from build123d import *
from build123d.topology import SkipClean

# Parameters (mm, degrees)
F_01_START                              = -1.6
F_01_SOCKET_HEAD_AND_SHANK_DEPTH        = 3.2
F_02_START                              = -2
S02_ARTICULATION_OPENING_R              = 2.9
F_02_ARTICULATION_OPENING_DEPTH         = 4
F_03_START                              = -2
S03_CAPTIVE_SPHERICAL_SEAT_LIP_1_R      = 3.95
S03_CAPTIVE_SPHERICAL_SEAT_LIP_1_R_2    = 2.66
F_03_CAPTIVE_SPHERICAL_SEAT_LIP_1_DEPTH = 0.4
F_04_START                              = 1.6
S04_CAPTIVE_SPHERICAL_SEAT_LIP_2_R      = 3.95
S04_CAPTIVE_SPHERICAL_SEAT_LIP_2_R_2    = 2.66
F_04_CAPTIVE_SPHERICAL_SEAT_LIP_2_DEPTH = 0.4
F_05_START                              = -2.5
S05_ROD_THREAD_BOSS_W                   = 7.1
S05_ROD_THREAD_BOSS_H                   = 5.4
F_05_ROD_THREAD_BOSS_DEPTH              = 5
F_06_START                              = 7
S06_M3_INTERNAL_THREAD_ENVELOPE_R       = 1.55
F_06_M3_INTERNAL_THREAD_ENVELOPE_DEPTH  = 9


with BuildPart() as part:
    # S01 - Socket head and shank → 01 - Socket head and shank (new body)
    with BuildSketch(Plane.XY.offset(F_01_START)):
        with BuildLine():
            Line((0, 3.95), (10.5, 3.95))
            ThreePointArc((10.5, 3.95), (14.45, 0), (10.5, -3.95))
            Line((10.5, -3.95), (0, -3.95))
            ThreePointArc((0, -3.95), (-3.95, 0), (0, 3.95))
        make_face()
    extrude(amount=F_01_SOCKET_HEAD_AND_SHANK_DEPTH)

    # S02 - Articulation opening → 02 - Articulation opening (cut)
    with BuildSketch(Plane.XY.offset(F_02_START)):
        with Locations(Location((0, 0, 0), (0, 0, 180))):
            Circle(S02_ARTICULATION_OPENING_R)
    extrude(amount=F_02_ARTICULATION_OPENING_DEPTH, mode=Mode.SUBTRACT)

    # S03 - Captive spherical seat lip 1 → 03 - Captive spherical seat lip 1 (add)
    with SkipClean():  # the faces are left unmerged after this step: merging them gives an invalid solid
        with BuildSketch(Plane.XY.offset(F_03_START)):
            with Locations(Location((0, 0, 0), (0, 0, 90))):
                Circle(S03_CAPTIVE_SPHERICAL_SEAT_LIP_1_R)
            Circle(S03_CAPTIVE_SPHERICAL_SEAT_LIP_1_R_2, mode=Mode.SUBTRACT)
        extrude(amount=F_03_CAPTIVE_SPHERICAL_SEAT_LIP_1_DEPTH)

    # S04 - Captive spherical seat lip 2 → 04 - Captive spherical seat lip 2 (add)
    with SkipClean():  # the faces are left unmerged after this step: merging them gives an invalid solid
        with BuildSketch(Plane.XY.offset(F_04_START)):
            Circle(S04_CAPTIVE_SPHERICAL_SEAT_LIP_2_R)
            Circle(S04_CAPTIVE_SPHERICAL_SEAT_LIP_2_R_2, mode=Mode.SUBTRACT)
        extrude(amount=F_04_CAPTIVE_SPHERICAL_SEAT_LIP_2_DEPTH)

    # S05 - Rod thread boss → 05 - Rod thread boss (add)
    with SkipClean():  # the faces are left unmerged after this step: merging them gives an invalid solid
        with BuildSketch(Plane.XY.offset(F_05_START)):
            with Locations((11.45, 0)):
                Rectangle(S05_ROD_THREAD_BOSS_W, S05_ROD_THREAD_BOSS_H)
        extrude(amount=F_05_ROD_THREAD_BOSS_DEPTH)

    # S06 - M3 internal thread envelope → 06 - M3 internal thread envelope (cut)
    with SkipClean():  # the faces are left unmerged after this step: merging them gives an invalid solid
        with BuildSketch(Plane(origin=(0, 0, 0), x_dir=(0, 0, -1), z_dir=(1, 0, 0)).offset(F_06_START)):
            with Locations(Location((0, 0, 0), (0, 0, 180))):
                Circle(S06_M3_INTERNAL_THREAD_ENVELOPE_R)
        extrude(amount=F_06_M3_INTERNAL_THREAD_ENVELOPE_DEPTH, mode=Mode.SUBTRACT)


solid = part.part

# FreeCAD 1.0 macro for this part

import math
import FreeCAD as App
import Part
import Sketcher
from FreeCAD import Vector
Q = App.Units.Quantity


def add_polygon(sketch, points):
    """Adds a closed chain of lines whose ends are joined by coincident constraints."""
    first, n = sketch.GeometryCount, len(points)
    for a, b in zip(points, points[1:] + points[:1]):
        sketch.addGeometry(Part.LineSegment(App.Vector(*a, 0), App.Vector(*b, 0)), False)
    for i in range(n):
        sketch.addConstraint(Sketcher.Constraint("Coincident", first + i, 2, first + (i + 1) % n, 1))

doc = App.newDocument("Part")
params = doc.addObject("Spreadsheet::Sheet", "Params")
for row, (alias, value) in enumerate([
    ("sketch1_radius", "3.95 mm"),
    ("sketch1_width", "10.5 mm"),
    ("pad1_length", "3.2 mm"),
    ("sketch2_diameter", "5.8 mm"),
    ("pocket1_length", "4 mm"),
    ("sketch3_diameter", "7.9 mm"),
    ("sketch3_diameter2", "5.32 mm"),
    ("pad2_length", "0.4 mm"),
    ("sketch4_diameter", "7.9 mm"),
    ("sketch4_diameter2", "5.32 mm"),
    ("pad3_length", "0.4 mm"),
    ("sketch5_width", "7.1 mm"),
    ("sketch5_height", "5.4 mm"),
    ("pad4_length", "5 mm"),
    ("sketch6_diameter", "3.1 mm"),
    ("pocket2_length", "9 mm"),
], start=1):
    params.set(f"A{row}", alias)
    params.set(f"B{row}", "=" + value)
    params.setAlias(f"B{row}", alias)

body = doc.addObject("PartDesign::Body", "Body")

sketch1 = body.newObject("Sketcher::SketchObject", "Sketch")
sketch1.AttachmentSupport = (doc.getObject("XY_Plane"), [""])
sketch1.MapMode = "FlatFace"
sketch1.AttachmentOffset = App.Placement(Vector(0, 0, -1.6), App.Rotation())
sketch1.addGeometry([
    Part.LineSegment(Vector(10.5, 4, 0), Vector(0, 4, 0)),
    Part.ArcOfCircle(Part.Circle(Vector(0, 0, 0), Vector(0, 0, 1), 4), math.radians(90), math.radians(270)),
    Part.LineSegment(Vector(0, -4, 0), Vector(10.5, -4, 0)),
    Part.ArcOfCircle(Part.Circle(Vector(10.5, 0, 0), Vector(0, 0, 1), 4), math.radians(-90), math.radians(90)),
], False)
sketch1.addConstraint([
    Sketcher.Constraint("Tangent", 0, 2, 1, 1),
    Sketcher.Constraint("Tangent", 1, 2, 2, 1),
    Sketcher.Constraint("Tangent", 2, 2, 3, 1),
    Sketcher.Constraint("Tangent", 3, 2, 0, 1),
    Sketcher.Constraint("Horizontal", 0),
    Sketcher.Constraint("Horizontal", 2),
    Sketcher.Constraint("Coincident", 1, 3, -1, 1),
    Sketcher.Constraint("Radius", 1, Q("3.95 mm")),
    Sketcher.Constraint("DistanceX", 0, 2, 0, 1, Q("10.5 mm")),
])
sketch1.setExpression("Constraints[7]", "Params.sketch1_radius")
sketch1.setExpression("Constraints[8]", "Params.sketch1_width")
pad1 = body.newObject("PartDesign::Pad", "Pad")
pad1.Profile = sketch1
pad1.setExpression("Length", "Params.pad1_length")

sketch2 = body.newObject("Sketcher::SketchObject", "Sketch001")
sketch2.AttachmentSupport = (doc.getObject("XY_Plane"), [""])
sketch2.MapMode = "FlatFace"
sketch2.AttachmentOffset = App.Placement(Vector(0, 0, -2), App.Rotation())
sketch2.addGeometry(Part.Circle(Vector(0, 0, 0), Vector(0, 0, 1), 2.9), False)
sketch2.addConstraint([
    Sketcher.Constraint("Coincident", 0, 3, -1, 1),
    Sketcher.Constraint("Diameter", 0, Q("5.8 mm")),
])
sketch2.setExpression("Constraints[1]", "Params.sketch2_diameter")
pocket1 = body.newObject("PartDesign::Pocket", "Pocket")
pocket1.Profile = sketch2
pocket1.setExpression("Length", "Params.pocket1_length")
pocket1.Reversed = True

sketch3 = body.newObject("Sketcher::SketchObject", "Sketch002")
sketch3.AttachmentSupport = (doc.getObject("XY_Plane"), [""])
sketch3.MapMode = "FlatFace"
sketch3.AttachmentOffset = App.Placement(Vector(0, 0, -2), App.Rotation())
sketch3.addGeometry([
    Part.Circle(Vector(0, 0, 0), Vector(0, 0, 1), 4),
    Part.Circle(Vector(0, 0, 0), Vector(0, 0, 1), 2.7),
], False)
sketch3.addConstraint([
    Sketcher.Constraint("Coincident", 0, 3, -1, 1),
    Sketcher.Constraint("Coincident", 1, 3, -1, 1),
    Sketcher.Constraint("Diameter", 0, Q("7.9 mm")),
    Sketcher.Constraint("Diameter", 1, Q("5.32 mm")),
])
sketch3.setExpression("Constraints[2]", "Params.sketch3_diameter")
sketch3.setExpression("Constraints[3]", "Params.sketch3_diameter2")
pad2 = body.newObject("PartDesign::Pad", "Pad001")
pad2.Profile = sketch3
pad2.setExpression("Length", "Params.pad2_length")

sketch4 = body.newObject("Sketcher::SketchObject", "Sketch003")
sketch4.AttachmentSupport = (doc.getObject("XY_Plane"), [""])
sketch4.MapMode = "FlatFace"
sketch4.AttachmentOffset = App.Placement(Vector(0, 0, 1.6), App.Rotation())
sketch4.addGeometry([
    Part.Circle(Vector(0, 0, 0), Vector(0, 0, 1), 4),
    Part.Circle(Vector(0, 0, 0), Vector(0, 0, 1), 2.7),
], False)
sketch4.addConstraint([
    Sketcher.Constraint("Coincident", 0, 3, -1, 1),
    Sketcher.Constraint("Coincident", 1, 3, -1, 1),
    Sketcher.Constraint("Diameter", 0, Q("7.9 mm")),
    Sketcher.Constraint("Diameter", 1, Q("5.32 mm")),
])
sketch4.setExpression("Constraints[2]", "Params.sketch4_diameter")
sketch4.setExpression("Constraints[3]", "Params.sketch4_diameter2")
pad3 = body.newObject("PartDesign::Pad", "Pad002")
pad3.Profile = sketch4
pad3.setExpression("Length", "Params.pad3_length")

sketch5 = body.newObject("Sketcher::SketchObject", "Sketch004")
sketch5.AttachmentSupport = (doc.getObject("XY_Plane"), [""])
sketch5.MapMode = "FlatFace"
sketch5.AttachmentOffset = App.Placement(Vector(0, 0, -2.5), App.Rotation())
add_polygon(sketch5, [(8, 3), (8, -3), (15, -3), (15, 3)])
sketch5.addConstraint([
    Sketcher.Constraint("Vertical", 0),
    Sketcher.Constraint("Horizontal", 1),
    Sketcher.Constraint("Vertical", 2),
    Sketcher.Constraint("Horizontal", 3),
    Sketcher.Constraint("DistanceX", 1, 1, 1, 2, Q("7.1 mm")),
    Sketcher.Constraint("DistanceY", 0, 2, 0, 1, Q("5.4 mm")),
    Sketcher.Constraint("DistanceX", -1, 1, 1, 2, Q("15 mm")),
    Sketcher.Constraint("DistanceY", 0, 2, -1, 1, Q("2.7 mm")),
])
sketch5.setExpression("Constraints[8]", "Params.sketch5_width")
sketch5.setExpression("Constraints[9]", "Params.sketch5_height")
pad4 = body.newObject("PartDesign::Pad", "Pad003")
pad4.Profile = sketch5
pad4.setExpression("Length", "Params.pad4_length")

sketch6 = body.newObject("Sketcher::SketchObject", "Sketch005")
sketch6.AttachmentSupport = (doc.getObject("YZ_Plane"), [""])
sketch6.MapMode = "FlatFace"
sketch6.AttachmentOffset = App.Placement(Vector(0, 0, 7), App.Rotation())
sketch6.addGeometry(Part.Circle(Vector(0, 0, 0), Vector(0, 0, 1), 1.6), False)
sketch6.addConstraint([
    Sketcher.Constraint("Coincident", 0, 3, -1, 1),
    Sketcher.Constraint("Diameter", 0, Q("3.1 mm")),
])
sketch6.setExpression("Constraints[1]", "Params.sketch6_diameter")
pocket2 = body.newObject("PartDesign::Pocket", "Pocket001")
pocket2.Profile = sketch6
pocket2.setExpression("Length", "Params.pocket2_length")
pocket2.Reversed = True

doc.recompute()
